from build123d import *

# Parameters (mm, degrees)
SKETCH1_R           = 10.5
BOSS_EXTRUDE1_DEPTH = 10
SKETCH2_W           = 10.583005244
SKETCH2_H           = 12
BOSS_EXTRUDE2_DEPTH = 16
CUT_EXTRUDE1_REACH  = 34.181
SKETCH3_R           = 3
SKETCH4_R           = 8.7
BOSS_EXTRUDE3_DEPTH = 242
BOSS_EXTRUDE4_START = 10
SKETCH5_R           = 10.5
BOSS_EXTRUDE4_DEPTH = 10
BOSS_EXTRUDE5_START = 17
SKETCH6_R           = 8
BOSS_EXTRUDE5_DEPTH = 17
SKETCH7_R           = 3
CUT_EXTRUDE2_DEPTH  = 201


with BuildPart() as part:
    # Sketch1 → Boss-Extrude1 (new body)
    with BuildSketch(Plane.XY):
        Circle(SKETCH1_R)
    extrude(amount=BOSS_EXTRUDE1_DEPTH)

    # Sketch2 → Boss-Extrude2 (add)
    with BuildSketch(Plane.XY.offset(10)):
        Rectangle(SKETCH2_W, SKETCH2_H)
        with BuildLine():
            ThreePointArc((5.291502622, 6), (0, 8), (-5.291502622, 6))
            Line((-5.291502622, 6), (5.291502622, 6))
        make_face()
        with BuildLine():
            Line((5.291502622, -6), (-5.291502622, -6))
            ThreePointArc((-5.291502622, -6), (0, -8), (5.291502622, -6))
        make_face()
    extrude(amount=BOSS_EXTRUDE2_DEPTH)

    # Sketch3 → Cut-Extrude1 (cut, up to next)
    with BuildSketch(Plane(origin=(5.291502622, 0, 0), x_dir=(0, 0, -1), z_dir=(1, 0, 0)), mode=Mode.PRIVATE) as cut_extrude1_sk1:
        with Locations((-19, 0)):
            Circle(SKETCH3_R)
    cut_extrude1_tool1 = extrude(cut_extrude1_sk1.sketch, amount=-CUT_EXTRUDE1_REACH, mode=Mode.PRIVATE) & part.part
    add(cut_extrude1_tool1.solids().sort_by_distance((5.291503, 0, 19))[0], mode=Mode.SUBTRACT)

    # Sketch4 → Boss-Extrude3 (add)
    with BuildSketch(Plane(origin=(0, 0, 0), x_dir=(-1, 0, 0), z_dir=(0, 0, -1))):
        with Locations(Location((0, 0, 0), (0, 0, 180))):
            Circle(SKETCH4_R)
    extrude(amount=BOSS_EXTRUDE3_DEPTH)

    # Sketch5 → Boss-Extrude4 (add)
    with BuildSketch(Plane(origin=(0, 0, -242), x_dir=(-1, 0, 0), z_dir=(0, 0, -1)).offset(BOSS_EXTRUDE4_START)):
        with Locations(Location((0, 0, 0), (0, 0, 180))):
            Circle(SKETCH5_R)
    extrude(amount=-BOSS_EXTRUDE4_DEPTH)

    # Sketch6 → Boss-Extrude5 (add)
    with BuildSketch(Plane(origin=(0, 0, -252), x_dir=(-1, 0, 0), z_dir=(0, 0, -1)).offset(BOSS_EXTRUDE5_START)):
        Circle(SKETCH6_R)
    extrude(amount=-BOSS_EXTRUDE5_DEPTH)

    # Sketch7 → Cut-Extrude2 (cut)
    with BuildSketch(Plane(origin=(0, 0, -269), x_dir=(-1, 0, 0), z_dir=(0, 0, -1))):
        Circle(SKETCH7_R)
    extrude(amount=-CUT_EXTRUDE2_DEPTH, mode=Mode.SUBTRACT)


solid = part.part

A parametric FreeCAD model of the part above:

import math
import FreeCAD as App
import Part
import Sketcher

V = App.Vector

doc = App.newDocument("Part")
body = doc.addObject("PartDesign::Body", "Body")

# Sketch on XY plane
sketch1 = doc.addObject("Sketcher::SketchObject", "Sketch")
body.addObject(sketch1)
sketch1.AttachmentSupport = (doc.XY_Plane, [""])
sketch1.MapMode = "FlatFace"
sketch1.addGeometry(Part.Circle(V(0, 0, 0), V(0, 0, 1), 10), False)
sketch1.addConstraint(Sketcher.Constraint("Coincident", 0, 3, -1, 1))
sketch1.addConstraint(Sketcher.Constraint("Diameter", 0, 21.0))
pad1 = doc.addObject("PartDesign::Pad", "Pad")
body.addObject(pad1)
pad1.Profile = sketch1
pad1.Length = 10

# Sketch on XY plane
sketch2 = doc.addObject("Sketcher::SketchObject", "Sketch001")
body.addObject(sketch2)
sketch2.AttachmentSupport = (doc.XY_Plane, [""])
sketch2.MapMode = "FlatFace"
sketch2.AttachmentOffset = App.Placement(V(0, 0, 10), App.Rotation())
sketch2.addGeometry(Part.LineSegment(V(-5, 6, 0), V(-5, -6, 0)), False)
sketch2.addGeometry(Part.ArcOfCircle(Part.Circle(V(0, 0, 0), V(0, 0, 1), 8), math.radians(-131), math.radians(-49)), False)
sketch2.addGeometry(Part.LineSegment(V(5, -6, 0), V(5, 6, 0)), False)
sketch2.addGeometry(Part.ArcOfCircle(Part.Circle(V(0, 0, 0), V(0, 0, 1), 8), math.radians(49), math.radians(131)), False)
sketch2.addConstraint(Sketcher.Constraint("Coincident", 0, 2, 1, 1))
sketch2.addConstraint(Sketcher.Constraint("Coincident", 1, 2, 2, 1))
sketch2.addConstraint(Sketcher.Constraint("Coincident", 2, 2, 3, 1))
sketch2.addConstraint(Sketcher.Constraint("Coincident", 3, 2, 0, 1))
sketch2.addConstraint(Sketcher.Constraint("Vertical", 0))
sketch2.addConstraint(Sketcher.Constraint("Vertical", 2))
sketch2.addConstraint(Sketcher.Constraint("Coincident", 1, 3, -1, 1))
sketch2.addConstraint(Sketcher.Constraint("Coincident", 3, 3, -1, 1))
sketch2.addConstraint(Sketcher.Constraint("Equal", 1, 3))
sketch2.addConstraint(Sketcher.Constraint("Horizontal", 0, 2, 1, 2))
sketch2.addConstraint(Sketcher.Constraint("Radius", 1, 8.0))
sketch2.addConstraint(Sketcher.Constraint("DistanceY", 0, 2, 0, 1, 12.0))
pad2 = doc.addObject("PartDesign::Pad", "Pad001")
body.addObject(pad2)
pad2.Profile = sketch2
pad2.Length = 16

# Sketch on YZ plane
sketch3 = doc.addObject("Sketcher::SketchObject", "Sketch002")
body.addObject(sketch3)
sketch3.AttachmentSupport = (doc.YZ_Plane, [""])
sketch3.MapMode = "FlatFace"
sketch3.AttachmentOffset = App.Placement(V(0, 0, 5.291503), App.Rotation())
sketch3.addGeometry(Part.Circle(V(0, 19, 0), V(0, 0, 1), 3), False)
sketch3.addConstraint(Sketcher.Constraint("PointOnObject", 0, 3, -2))
sketch3.addConstraint(Sketcher.Constraint("Diameter", 0, 6.0))
sketch3.addConstraint(Sketcher.Constraint("DistanceY", -1, 1, 0, 3, 19.0))
pocket1 = doc.addObject("PartDesign::Pocket", "Pocket")
body.addObject(pocket1)
pocket1.Profile = sketch3
pocket1.Type = "UpToFirst"

# Sketch on XY plane
sketch4 = doc.addObject("Sketcher::SketchObject", "Sketch003")
body.addObject(sketch4)
sketch4.AttachmentSupport = (doc.XY_Plane, [""])
sketch4.MapMode = "FlatFace"
sketch4.addGeometry(Part.Circle(V(0, 0, 0), V(0, 0, 1), 9), False)
sketch4.addConstraint(Sketcher.Constraint("Coincident", 0, 3, -1, 1))
sketch4.addConstraint(Sketcher.Constraint("Diameter", 0, 17.4))
pad3 = doc.addObject("PartDesign::Pad", "Pad002")
body.addObject(pad3)
pad3.Profile = sketch4
pad3.Length = 242
pad3.Reversed = True

# Sketch on XY plane
sketch5 = doc.addObject("Sketcher::SketchObject", "Sketch004")
body.addObject(sketch5)
sketch5.AttachmentSupport = (doc.XY_Plane, [""])
sketch5.MapMode = "FlatFace"
sketch5.AttachmentOffset = App.Placement(V(0, 0, -252), App.Rotation())
sketch5.addGeometry(Part.Circle(V(0, 0, 0), V(0, 0, 1), 10), False)
sketch5.addConstraint(Sketcher.Constraint("Coincident", 0, 3, -1, 1))
sketch5.addConstraint(Sketcher.Constraint("Diameter", 0, 21.0))
pad4 = doc.addObject("PartDesign::Pad", "Pad003")
body.addObject(pad4)
pad4.Profile = sketch5
pad4.Length = 10

# Sketch on XY plane
sketch6 = doc.addObject("Sketcher::SketchObject", "Sketch005")
body.addObject(sketch6)
sketch6.AttachmentSupport = (doc.XY_Plane, [""])
sketch6.MapMode = "FlatFace"
sketch6.AttachmentOffset = App.Placement(V(0, 0, -269), App.Rotation())
sketch6.addGeometry(Part.Circle(V(0, 0, 0), V(0, 0, 1), 8), False)
sketch6.addConstraint(Sketcher.Constraint("Coincident", 0, 3, -1, 1))
sketch6.addConstraint(Sketcher.Constraint("Diameter", 0, 16.0))
pad5 = doc.addObject("PartDesign::Pad", "Pad004")
body.addObject(pad5)
pad5.Profile = sketch6
pad5.Length = 17

# Sketch on XY plane
sketch7 = doc.addObject("Sketcher::SketchObject", "Sketch006")
body.addObject(sketch7)
sketch7.AttachmentSupport = (doc.XY_Plane, [""])
sketch7.MapMode = "FlatFace"
sketch7.AttachmentOffset = App.Placement(V(0, 0, -269), App.Rotation())
sketch7.addGeometry(Part.Circle(V(0, 0, 0), V(0, 0, 1), 3), False)
sketch7.addConstraint(Sketcher.Constraint("Coincident", 0, 3, -1, 1))
sketch7.addConstraint(Sketcher.Constraint("Diameter", 0, 6.0))
pocket2 = doc.addObject("PartDesign::Pocket", "Pocket001")
body.addObject(pocket2)
pocket2.Profile = sketch7
pocket2.Length = 201
pocket2.Reversed = True

doc.recompute()
